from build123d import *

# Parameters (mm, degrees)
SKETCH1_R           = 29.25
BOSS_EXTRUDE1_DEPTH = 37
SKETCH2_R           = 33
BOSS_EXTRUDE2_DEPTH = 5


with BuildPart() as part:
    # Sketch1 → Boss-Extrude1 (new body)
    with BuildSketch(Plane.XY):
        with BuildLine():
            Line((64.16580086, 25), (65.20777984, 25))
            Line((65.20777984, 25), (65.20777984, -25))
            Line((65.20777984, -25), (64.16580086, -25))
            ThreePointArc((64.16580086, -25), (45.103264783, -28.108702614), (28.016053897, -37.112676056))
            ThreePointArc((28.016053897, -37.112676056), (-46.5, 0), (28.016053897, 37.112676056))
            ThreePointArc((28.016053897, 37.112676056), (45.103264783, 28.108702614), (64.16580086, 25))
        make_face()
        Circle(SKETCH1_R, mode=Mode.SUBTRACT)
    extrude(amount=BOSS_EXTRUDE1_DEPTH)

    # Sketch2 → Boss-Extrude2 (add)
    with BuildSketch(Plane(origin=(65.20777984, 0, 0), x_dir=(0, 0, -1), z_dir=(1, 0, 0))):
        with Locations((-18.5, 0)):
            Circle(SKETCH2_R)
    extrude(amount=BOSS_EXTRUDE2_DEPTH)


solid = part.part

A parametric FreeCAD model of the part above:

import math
import FreeCAD as App
import Part
import Sketcher
from FreeCAD import Vector
Q = App.Units.Quantity

doc = App.newDocument("Part")
body = doc.addObject("PartDesign::Body", "Body")

# Sketch on XY plane
sketch1 = doc.addObject("Sketcher::SketchObject", "Sketch")
body.addObject(sketch1)
sketch1.AttachmentSupport = (doc.XY_Plane, [""])
sketch1.MapMode = "FlatFace"
sketch1.addGeometry(Part.LineSegment(Vector(65.2, 25, 0), Vector(64.2, 25, 0)), False)
sketch1.addGeometry(Part.ArcOfCircle(Part.Circle(Vector(64.2, 85, 0), Vector(0, 0, 1), 60), math.radians(-127), math.radians(-90)), False)
sketch1.addGeometry(Part.ArcOfCircle(Part.Circle(Vector(0, 0, 0), Vector(0, 0, 1), 46.5), math.radians(53), math.radians(307)), False)
sketch1.addGeometry(Part.ArcOfCircle(Part.Circle(Vector(64.2, -85, 0), Vector(0, 0, 1), 60), math.radians(90), math.radians(127)), False)
sketch1.addGeometry(Part.LineSegment(Vector(64.2, -25, 0), Vector(65.2, -25, 0)), False)
sketch1.addGeometry(Part.LineSegment(Vector(65.2, -25, 0), Vector(65.2, 25, 0)), False)
sketch1.addGeometry(Part.Circle(Vector(0, 0, 0), Vector(0, 0, 1), 29.2), False)
sketch1.addConstraint(Sketcher.Constraint("Tangent", 0, 2, 1, 2))
sketch1.addConstraint(Sketcher.Constraint("Tangent", 1, 1, 2, 1))
sketch1.addConstraint(Sketcher.Constraint("Tangent", 2, 2, 3, 2))
sketch1.addConstraint(Sketcher.Constraint("Tangent", 3, 1, 4, 1))
sketch1.addConstraint(Sketcher.Constraint("Coincident", 4, 2, 5, 1))
sketch1.addConstraint(Sketcher.Constraint("Coincident", 5, 2, 0, 1))
sketch1.addConstraint(Sketcher.Constraint("Horizontal", 0))
sketch1.addConstraint(Sketcher.Constraint("Horizontal", 4))
sketch1.addConstraint(Sketcher.Constraint("Vertical", 5))
sketch1.addConstraint(Sketcher.Constraint("Coincident", 2, 3, -1, 1))
sketch1.addConstraint(Sketcher.Constraint("Coincident", 6, 3, -1, 1))
sketch1.addConstraint(Sketcher.Constraint("Equal", 1, 3))
sketch1.addConstraint(Sketcher.Constraint("Vertical", 1, 3, 3, 3))
sketch1.addConstraint(Sketcher.Constraint("Radius", 1, Q("60 mm")))
sketch1.addConstraint(Sketcher.Constraint("Diameter", 6, Q("58.5 mm")))
sketch1.addConstraint(Sketcher.Constraint("Radius", 2, Q("46.5 mm")))
sketch1.addConstraint(Sketcher.Constraint("DistanceY", 5, 1, 5, 2, Q("50 mm")))
sketch1.addConstraint(Sketcher.Constraint("DistanceX", 0, 2, 0, 1, Q("1.041979 mm")))
pad1 = doc.addObject("PartDesign::Pad", "Pad")
body.addObject(pad1)
pad1.Profile = sketch1
pad1.Length = 37

# Sketch on YZ plane
sketch2 = doc.addObject("Sketcher::SketchObject", "Sketch001")
body.addObject(sketch2)
sketch2.AttachmentSupport = (doc.YZ_Plane, [""])
sketch2.MapMode = "FlatFace"
sketch2.AttachmentOffset = App.Placement(Vector(0, 0, 65.20778), App.Rotation())
sketch2.addGeometry(Part.Circle(Vector(0, 18, 0), Vector(0, 0, 1), 33), False)
sketch2.addConstraint(Sketcher.Constraint("PointOnObject", 0, 3, -2))
sketch2.addConstraint(Sketcher.Constraint("Diameter", 0, Q("66 mm")))
sketch2.addConstraint(Sketcher.Constraint("DistanceY", -1, 1, 0, 3, Q("18.5 mm")))
pad2 = doc.addObject("PartDesign::Pad", "Pad001")
body.addObject(pad2)
pad2.Profile = sketch2
pad2.Length = 5

doc.recompute()
